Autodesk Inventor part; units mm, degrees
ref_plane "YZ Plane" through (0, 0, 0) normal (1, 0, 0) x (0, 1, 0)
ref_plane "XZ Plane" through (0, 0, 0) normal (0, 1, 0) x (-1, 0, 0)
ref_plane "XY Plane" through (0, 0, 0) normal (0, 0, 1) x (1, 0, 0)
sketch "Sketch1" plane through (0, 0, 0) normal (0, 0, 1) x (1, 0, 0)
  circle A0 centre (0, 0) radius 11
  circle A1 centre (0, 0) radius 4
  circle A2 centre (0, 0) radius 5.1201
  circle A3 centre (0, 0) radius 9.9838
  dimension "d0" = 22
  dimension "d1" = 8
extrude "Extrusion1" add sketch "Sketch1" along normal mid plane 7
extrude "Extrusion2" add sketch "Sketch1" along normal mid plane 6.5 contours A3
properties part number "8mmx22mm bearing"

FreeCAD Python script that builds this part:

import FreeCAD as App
import Part
import Sketcher
from FreeCAD import Vector
Q = App.Units.Quantity

doc = App.newDocument("Part")
body = doc.addObject("PartDesign::Body", "Body")
body.AllowCompound = True

sketch1 = doc.addObject("Sketcher::SketchObject", "Sketch")
body.addObject(sketch1)
sketch1.AttachmentSupport = (doc.XY_Plane, [""])
sketch1.MapMode = "FlatFace"
sketch1.addGeometry([
    Part.Circle(Vector(0, 0, 0), Vector(0, 0, 1), 11),
    Part.Circle(Vector(0, 0, 0), Vector(0, 0, 1), 9.9838),
    Part.Circle(Vector(0, 0, 0), Vector(0, 0, 1), 5.1201),
    Part.Circle(Vector(0, 0, 0), Vector(0, 0, 1), 4),
], False)
sketch1.addConstraint([
    Sketcher.Constraint("Coincident", 0, 3, -1, 1),
    Sketcher.Constraint("Coincident", 1, 3, -1, 1),
    Sketcher.Constraint("Coincident", 2, 3, -1, 1),
    Sketcher.Constraint("Coincident", 3, 3, -1, 1),
    Sketcher.Constraint("Diameter", 0, Q("22 mm")),
    Sketcher.Constraint("Diameter", 3, Q("8 mm")),
    Sketcher.Constraint("Diameter", 1, Q("19.9676 mm")),
    Sketcher.Constraint("Diameter", 2, Q("10.2402 mm")),
])
pad1 = doc.addObject("PartDesign::Pad", "Pad")
body.addObject(pad1)
pad1.Profile = sketch1
pad1.Length = 7
pad1.Midplane = True

sketch2 = doc.addObject("Sketcher::SketchObject", "Sketch001")
body.addObject(sketch2)
sketch2.AttachmentSupport = (doc.XY_Plane, [""])
sketch2.MapMode = "FlatFace"
sketch2.addGeometry([
    Part.Circle(Vector(0, 0, 0), Vector(0, 0, 1), 9.9838),
    Part.Circle(Vector(0, 0, 0), Vector(0, 0, 1), 5.1201),
], False)
sketch2.addConstraint([
    Sketcher.Constraint("Coincident", 0, 3, -1, 1),
    Sketcher.Constraint("Coincident", 1, 3, -1, 1),
    Sketcher.Constraint("Diameter", 0, Q("19.9676 mm")),
    Sketcher.Constraint("Diameter", 1, Q("10.2402 mm")),
])
pad2 = doc.addObject("PartDesign::Pad", "Pad001")
body.addObject(pad2)
pad2.Profile = sketch2
pad2.Length = 6.5
pad2.Midplane = True

doc.recompute()
